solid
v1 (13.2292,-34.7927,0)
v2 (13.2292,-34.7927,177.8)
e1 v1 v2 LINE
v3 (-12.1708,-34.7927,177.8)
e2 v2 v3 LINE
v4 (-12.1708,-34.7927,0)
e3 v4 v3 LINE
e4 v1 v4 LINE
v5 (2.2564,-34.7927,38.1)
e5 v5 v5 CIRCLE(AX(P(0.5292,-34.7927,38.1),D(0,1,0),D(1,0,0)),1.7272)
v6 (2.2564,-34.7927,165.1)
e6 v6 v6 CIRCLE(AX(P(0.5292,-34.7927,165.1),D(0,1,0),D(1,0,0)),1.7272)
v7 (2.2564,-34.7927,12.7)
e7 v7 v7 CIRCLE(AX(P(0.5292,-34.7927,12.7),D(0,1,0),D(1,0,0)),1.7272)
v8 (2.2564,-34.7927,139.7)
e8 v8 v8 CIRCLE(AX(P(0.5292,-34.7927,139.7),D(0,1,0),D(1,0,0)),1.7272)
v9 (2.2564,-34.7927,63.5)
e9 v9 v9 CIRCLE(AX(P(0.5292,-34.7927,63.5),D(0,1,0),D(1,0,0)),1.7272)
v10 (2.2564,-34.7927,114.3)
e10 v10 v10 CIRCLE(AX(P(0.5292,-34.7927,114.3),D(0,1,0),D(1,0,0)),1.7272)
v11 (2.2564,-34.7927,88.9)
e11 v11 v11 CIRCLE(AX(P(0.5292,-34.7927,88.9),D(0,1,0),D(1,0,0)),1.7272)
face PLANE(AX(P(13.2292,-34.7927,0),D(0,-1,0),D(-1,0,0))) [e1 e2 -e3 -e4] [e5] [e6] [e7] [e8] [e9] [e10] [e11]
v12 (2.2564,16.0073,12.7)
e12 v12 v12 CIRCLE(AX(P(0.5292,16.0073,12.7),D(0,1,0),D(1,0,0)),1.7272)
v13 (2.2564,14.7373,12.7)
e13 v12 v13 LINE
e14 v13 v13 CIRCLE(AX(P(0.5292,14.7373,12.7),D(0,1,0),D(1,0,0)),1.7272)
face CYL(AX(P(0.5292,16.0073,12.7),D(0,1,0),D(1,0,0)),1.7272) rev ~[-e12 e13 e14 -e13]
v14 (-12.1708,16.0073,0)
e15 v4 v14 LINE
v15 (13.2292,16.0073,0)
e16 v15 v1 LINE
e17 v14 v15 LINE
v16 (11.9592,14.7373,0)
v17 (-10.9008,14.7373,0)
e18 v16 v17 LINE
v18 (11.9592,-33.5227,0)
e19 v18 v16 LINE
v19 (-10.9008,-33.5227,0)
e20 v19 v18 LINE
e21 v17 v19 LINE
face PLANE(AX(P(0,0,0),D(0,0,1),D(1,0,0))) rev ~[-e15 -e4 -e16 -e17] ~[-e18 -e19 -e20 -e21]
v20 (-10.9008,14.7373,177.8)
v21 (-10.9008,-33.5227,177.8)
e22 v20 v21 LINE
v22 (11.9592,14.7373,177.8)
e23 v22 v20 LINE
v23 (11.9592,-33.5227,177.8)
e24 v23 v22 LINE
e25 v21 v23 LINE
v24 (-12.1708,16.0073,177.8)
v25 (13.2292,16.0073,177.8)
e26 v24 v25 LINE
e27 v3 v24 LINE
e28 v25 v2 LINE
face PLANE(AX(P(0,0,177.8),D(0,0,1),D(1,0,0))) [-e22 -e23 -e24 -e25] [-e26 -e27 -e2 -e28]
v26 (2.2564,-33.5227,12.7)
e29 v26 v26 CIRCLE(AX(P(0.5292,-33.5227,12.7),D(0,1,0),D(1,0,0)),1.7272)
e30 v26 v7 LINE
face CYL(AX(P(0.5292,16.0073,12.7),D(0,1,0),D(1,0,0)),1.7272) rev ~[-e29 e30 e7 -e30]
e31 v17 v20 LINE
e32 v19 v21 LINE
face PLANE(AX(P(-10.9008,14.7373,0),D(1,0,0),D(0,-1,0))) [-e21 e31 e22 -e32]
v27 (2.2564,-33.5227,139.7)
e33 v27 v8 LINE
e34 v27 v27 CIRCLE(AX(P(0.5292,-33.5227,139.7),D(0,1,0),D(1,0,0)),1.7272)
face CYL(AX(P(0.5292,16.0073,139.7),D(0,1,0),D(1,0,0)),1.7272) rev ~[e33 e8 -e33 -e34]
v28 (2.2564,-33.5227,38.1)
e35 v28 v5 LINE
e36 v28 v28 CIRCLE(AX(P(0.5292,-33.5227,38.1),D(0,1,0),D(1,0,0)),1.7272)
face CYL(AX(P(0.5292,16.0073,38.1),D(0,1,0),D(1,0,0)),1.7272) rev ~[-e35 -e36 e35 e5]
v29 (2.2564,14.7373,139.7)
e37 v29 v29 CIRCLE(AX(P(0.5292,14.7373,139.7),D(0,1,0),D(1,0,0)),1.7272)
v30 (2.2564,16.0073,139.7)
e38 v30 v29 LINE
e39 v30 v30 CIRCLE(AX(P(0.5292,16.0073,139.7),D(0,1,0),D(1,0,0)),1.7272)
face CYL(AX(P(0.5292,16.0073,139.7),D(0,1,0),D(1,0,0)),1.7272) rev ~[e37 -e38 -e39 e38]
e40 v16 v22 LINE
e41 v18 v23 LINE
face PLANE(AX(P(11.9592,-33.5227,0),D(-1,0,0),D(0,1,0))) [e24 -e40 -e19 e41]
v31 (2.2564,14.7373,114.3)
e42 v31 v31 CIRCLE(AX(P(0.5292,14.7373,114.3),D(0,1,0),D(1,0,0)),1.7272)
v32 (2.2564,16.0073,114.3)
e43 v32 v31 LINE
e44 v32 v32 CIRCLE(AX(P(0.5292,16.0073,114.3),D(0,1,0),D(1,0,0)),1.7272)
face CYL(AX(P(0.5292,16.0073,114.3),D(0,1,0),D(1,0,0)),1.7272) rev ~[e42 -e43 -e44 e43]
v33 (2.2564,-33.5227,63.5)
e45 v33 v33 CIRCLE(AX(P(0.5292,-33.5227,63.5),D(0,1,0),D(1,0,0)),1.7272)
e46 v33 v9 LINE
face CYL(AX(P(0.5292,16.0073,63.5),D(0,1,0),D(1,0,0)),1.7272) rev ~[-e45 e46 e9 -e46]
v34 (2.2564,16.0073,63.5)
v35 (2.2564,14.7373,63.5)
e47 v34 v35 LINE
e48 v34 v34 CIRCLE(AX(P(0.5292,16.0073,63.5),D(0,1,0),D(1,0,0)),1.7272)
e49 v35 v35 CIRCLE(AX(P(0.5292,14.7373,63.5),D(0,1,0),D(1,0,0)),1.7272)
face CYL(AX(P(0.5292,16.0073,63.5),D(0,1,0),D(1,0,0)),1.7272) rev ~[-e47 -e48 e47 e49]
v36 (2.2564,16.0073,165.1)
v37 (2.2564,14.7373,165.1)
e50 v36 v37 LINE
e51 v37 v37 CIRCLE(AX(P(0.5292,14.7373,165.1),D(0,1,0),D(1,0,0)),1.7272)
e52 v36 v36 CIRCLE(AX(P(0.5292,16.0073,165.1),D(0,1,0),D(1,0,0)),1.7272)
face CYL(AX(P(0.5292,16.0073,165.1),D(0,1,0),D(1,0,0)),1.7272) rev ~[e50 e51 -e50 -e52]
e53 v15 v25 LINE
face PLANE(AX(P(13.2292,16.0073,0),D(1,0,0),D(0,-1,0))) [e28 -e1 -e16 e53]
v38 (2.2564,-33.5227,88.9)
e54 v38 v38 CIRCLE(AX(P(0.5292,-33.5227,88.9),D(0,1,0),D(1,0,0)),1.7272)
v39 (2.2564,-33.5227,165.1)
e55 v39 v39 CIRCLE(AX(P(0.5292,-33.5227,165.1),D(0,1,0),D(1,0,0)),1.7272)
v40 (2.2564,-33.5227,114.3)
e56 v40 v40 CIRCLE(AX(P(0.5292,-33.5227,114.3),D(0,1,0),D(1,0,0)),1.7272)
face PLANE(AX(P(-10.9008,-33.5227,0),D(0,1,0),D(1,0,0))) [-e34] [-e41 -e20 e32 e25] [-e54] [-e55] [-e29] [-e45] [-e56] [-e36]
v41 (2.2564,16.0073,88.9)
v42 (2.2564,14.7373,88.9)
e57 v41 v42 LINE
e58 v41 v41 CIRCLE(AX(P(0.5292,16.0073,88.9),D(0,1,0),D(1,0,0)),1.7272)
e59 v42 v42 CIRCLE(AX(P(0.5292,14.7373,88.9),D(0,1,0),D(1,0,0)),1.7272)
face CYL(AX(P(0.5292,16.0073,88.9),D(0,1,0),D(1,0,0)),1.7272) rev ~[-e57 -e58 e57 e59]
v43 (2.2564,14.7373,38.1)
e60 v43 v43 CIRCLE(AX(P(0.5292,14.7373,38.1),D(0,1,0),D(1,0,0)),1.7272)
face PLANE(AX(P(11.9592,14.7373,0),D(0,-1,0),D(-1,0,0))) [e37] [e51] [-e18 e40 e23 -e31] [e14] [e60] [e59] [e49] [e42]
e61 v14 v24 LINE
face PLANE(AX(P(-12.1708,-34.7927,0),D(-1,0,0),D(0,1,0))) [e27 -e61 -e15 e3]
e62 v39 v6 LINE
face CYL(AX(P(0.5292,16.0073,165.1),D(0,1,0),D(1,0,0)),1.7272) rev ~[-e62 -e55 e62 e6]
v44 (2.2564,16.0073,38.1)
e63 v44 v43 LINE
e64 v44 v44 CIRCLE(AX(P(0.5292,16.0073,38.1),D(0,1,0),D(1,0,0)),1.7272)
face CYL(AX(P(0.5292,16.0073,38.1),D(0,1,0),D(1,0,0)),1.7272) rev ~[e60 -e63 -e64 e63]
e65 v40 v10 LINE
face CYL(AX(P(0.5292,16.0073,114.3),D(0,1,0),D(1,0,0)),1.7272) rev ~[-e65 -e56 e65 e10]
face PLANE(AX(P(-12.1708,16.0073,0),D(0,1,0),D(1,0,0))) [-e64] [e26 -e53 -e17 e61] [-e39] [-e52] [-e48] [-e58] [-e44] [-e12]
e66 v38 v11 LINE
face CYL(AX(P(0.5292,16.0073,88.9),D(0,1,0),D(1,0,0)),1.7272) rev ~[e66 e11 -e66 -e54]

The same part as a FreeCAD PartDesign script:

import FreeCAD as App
import Part
import Sketcher
from FreeCAD import Vector
Q = App.Units.Quantity


def add_polygon(sketch, points):
    """Adds a closed chain of lines whose ends are joined by coincident constraints."""
    first, n = sketch.GeometryCount, len(points)
    for a, b in zip(points, points[1:] + points[:1]):
        sketch.addGeometry(Part.LineSegment(App.Vector(*a, 0), App.Vector(*b, 0)), False)
    for i in range(n):
        sketch.addConstraint(Sketcher.Constraint("Coincident", first + i, 2, first + (i + 1) % n, 1))

doc = App.newDocument("Part")
body = doc.addObject("PartDesign::Body", "Body")

# Sketch on XY plane
sketch1 = doc.addObject("Sketcher::SketchObject", "Sketch")
body.addObject(sketch1)
sketch1.AttachmentSupport = (doc.XY_Plane, [""])
sketch1.MapMode = "FlatFace"
add_polygon(sketch1, [(13.2292, 16.0073), (-12.1708, 16.0073), (-12.1708, -34.7927), (13.2292, -34.7927)])  # lines 0-3
add_polygon(sketch1, [(-10.9008, 14.7373), (11.9592, 14.7373), (11.9592, -33.5227), (-10.9008, -33.5227)])  # lines 4-7
sketch1.addConstraint(Sketcher.Constraint("Horizontal", 0))
sketch1.addConstraint(Sketcher.Constraint("Vertical", 1))
sketch1.addConstraint(Sketcher.Constraint("Horizontal", 2))
sketch1.addConstraint(Sketcher.Constraint("Vertical", 3))
sketch1.addConstraint(Sketcher.Constraint("Horizontal", 4))
sketch1.addConstraint(Sketcher.Constraint("Vertical", 5))
sketch1.addConstraint(Sketcher.Constraint("Horizontal", 6))
sketch1.addConstraint(Sketcher.Constraint("Vertical", 7))
sketch1.addConstraint(Sketcher.Constraint("DistanceX", 0, 2, 0, 1, Q("1 in")))
sketch1.addConstraint(Sketcher.Constraint("DistanceY", 1, 2, 1, 1, Q("2 in")))
sketch1.addConstraint(Sketcher.Constraint("DistanceX", 4, 2, 3, 2, Q("0.05 in")))
sketch1.addConstraint(Sketcher.Constraint("DistanceY", 4, 2, 3, 2, Q("0.05 in")))
sketch1.addConstraint(Sketcher.Constraint("DistanceY", 2, 2, 5, 2, Q("0.05 in")))
sketch1.addConstraint(Sketcher.Constraint("DistanceX", 1, 2, 6, 2, Q("0.05 in")))
sketch1.addConstraint(Sketcher.Constraint("DistanceY", -1, 1, 0, 2, Q("0.6302 in")))
sketch1.addConstraint(Sketcher.Constraint("DistanceX", 0, 2, -1, 1, 12.1708))
pad1 = doc.addObject("PartDesign::Pad", "Pad")
body.addObject(pad1)
pad1.Profile = sketch1
pad1.Length = Q("7 in")

# Sketch on XZ plane
sketch2 = doc.addObject("Sketcher::SketchObject", "Sketch001")
body.addObject(sketch2)
sketch2.AttachmentSupport = (doc.XZ_Plane, [""])
sketch2.MapMode = "FlatFace"
sketch2.AttachmentOffset = App.Placement(Vector(0, 0, -0.6302087 * 25.4), App.Rotation())
sketch2.addGeometry(Part.Circle(Vector(0.5292, 12.7, 0), Vector(0, 0, 1), 1.7272), False)
sketch2.addConstraint(Sketcher.Constraint("Diameter", 0, Q("0.136 in")))
sketch2.addConstraint(Sketcher.Constraint("DistanceY", -1, 1, 0, 3, Q("0.5 in")))
sketch2.addConstraint(Sketcher.Constraint("DistanceX", -1, 1, 0, 3, 0.5292))
pocket1 = doc.addObject("PartDesign::Pocket", "Pocket")
body.addObject(pocket1)
pocket1.Profile = sketch2
pocket1.Type = "ThroughAll"
pocket1.Reversed = True
doc.recompute()

linearpattern = doc.addObject("PartDesign::LinearPattern", "LinearPattern")
body.addObject(linearpattern)
linearpattern.Originals = [pocket1]
linearpattern.Direction = (doc.Z_Axis, [""])
linearpattern.Mode = "offset"
linearpattern.Offset = Q("1 in")
linearpattern.Occurrences = 18
body.Tip = linearpattern

doc.recompute()
